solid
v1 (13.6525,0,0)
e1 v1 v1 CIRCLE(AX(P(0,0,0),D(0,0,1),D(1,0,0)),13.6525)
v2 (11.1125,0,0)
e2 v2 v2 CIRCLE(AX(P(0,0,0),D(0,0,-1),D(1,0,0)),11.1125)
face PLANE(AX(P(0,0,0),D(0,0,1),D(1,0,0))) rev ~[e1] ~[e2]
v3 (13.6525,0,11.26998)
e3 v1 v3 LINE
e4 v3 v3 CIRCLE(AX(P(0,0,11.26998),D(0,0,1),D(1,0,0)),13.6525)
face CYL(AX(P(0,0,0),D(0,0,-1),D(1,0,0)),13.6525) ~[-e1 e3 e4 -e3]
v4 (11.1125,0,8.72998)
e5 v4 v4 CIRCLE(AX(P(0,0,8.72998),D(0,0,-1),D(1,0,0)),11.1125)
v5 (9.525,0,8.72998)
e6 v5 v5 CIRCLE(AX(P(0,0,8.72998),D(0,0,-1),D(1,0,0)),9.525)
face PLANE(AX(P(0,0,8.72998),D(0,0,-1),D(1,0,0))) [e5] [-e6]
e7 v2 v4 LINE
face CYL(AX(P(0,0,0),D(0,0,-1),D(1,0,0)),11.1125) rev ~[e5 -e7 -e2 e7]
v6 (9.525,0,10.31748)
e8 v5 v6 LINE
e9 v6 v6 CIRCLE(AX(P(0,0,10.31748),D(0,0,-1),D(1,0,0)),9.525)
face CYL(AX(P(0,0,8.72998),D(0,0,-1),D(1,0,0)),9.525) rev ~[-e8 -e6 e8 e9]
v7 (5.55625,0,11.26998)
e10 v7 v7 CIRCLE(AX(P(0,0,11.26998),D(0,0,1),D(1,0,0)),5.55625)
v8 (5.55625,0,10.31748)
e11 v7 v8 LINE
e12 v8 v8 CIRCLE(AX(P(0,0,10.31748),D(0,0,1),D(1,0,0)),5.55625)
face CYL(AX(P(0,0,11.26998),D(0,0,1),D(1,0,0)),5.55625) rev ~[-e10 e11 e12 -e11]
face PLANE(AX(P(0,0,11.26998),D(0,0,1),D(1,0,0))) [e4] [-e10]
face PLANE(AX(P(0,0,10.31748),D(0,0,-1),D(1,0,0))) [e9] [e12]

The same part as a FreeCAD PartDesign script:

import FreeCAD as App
import Part
import Sketcher

V = App.Vector
Q = App.Units.Quantity

doc = App.newDocument("Part")
body = doc.addObject("PartDesign::Body", "Body")

sketch1 = doc.addObject("Sketcher::SketchObject", "Sketch")
body.addObject(sketch1)
sketch1.AttachmentSupport = (doc.XY_Plane, [""])
sketch1.MapMode = "FlatFace"
sketch1.addGeometry(Part.Circle(V(0, 0, 0), V(0, 0, 1), 14), False)
sketch1.addConstraint(Sketcher.Constraint("Coincident", 0, 3, -1, 1))
sketch1.addConstraint(Sketcher.Constraint("Diameter", 0, Q("1.075 in")))
pad1 = doc.addObject("PartDesign::Pad", "Pad")
body.addObject(pad1)
pad1.Profile = sketch1
pad1.Length = Q("0.4437 in")

sketch2 = doc.addObject("Sketcher::SketchObject", "Sketch001")
body.addObject(sketch2)
sketch2.AttachmentSupport = (doc.XY_Plane, [""])
sketch2.MapMode = "FlatFace"
sketch2.addGeometry(Part.Circle(V(0, 0, 0), V(0, 0, 1), 11), False)
sketch2.addConstraint(Sketcher.Constraint("Coincident", 0, 3, -1, 1))
sketch2.addConstraint(Sketcher.Constraint("Diameter", 0, Q("0.875 in")))
pocket1 = doc.addObject("PartDesign::Pocket", "Pocket")
body.addObject(pocket1)
pocket1.Profile = sketch2
pocket1.Length = Q("0.3437 in")
pocket1.Reversed = True

sketch3 = doc.addObject("Sketcher::SketchObject", "Sketch002")
body.addObject(sketch3)
sketch3.AttachmentSupport = (doc.XY_Plane, [""])
sketch3.MapMode = "FlatFace"
sketch3.AttachmentOffset = App.Placement(V(0, 0, 0.3437 * 25.4), App.Rotation())
sketch3.addGeometry(Part.Circle(V(0, 0, 0), V(0, 0, 1), 10), False)
sketch3.addConstraint(Sketcher.Constraint("Coincident", 0, 3, -1, 1))
sketch3.addConstraint(Sketcher.Constraint("Diameter", 0, Q("0.75 in")))
pocket2 = doc.addObject("PartDesign::Pocket", "Pocket001")
body.addObject(pocket2)
pocket2.Profile = sketch3
pocket2.Length = Q("0.0625 in")
pocket2.Reversed = True

sketch4 = doc.addObject("Sketcher::SketchObject", "Sketch003")
body.addObject(sketch4)
sketch4.AttachmentSupport = (doc.XY_Plane, [""])
sketch4.MapMode = "FlatFace"
sketch4.AttachmentOffset = App.Placement(V(0, 0, 0.4437 * 25.4), App.Rotation())
sketch4.addGeometry(Part.Circle(V(0, 0, 0), V(0, 0, 1), 6), False)
sketch4.addConstraint(Sketcher.Constraint("Coincident", 0, 3, -1, 1))
sketch4.addConstraint(Sketcher.Constraint("Diameter", 0, Q("0.4375 in")))
pocket3 = doc.addObject("PartDesign::Pocket", "Pocket002")
body.addObject(pocket3)
pocket3.Profile = sketch4
pocket3.Type = "ThroughAll"

doc.recompute()
